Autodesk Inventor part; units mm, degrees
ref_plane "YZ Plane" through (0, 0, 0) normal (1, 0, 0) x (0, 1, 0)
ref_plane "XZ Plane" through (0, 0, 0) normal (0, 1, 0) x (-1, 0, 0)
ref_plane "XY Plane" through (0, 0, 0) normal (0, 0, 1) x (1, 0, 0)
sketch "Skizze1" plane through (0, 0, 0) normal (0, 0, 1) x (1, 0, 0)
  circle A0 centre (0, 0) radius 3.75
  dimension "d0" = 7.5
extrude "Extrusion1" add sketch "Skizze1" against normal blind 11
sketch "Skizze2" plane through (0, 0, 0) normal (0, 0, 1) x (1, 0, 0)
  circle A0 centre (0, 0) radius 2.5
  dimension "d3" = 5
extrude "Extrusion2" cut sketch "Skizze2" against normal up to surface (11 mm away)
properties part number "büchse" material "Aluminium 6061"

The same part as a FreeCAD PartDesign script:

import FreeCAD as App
import Part
import Sketcher
from FreeCAD import Vector

doc = App.newDocument("Part")
body = doc.addObject("PartDesign::Body", "Body")

sketch1 = doc.addObject("Sketcher::SketchObject", "Sketch")
body.addObject(sketch1)
sketch1.AttachmentSupport = (doc.XY_Plane, [""])
sketch1.MapMode = "FlatFace"
sketch1.addGeometry(Part.Circle(Vector(0, 0, 0), Vector(0, 0, 1), 3.75), False)
sketch1.addConstraint(Sketcher.Constraint("Coincident", 0, 3, -1, 1))
sketch1.addConstraint(Sketcher.Constraint("Diameter", 0, 7.5))
pad1 = doc.addObject("PartDesign::Pad", "Pad")
body.addObject(pad1)
pad1.Profile = sketch1
pad1.Length = 11
pad1.Reversed = True

sketch2 = doc.addObject("Sketcher::SketchObject", "Sketch001")
body.addObject(sketch2)
sketch2.AttachmentSupport = (doc.XY_Plane, [""])
sketch2.MapMode = "FlatFace"
sketch2.addGeometry(Part.Circle(Vector(0, 0, 0), Vector(0, 0, 1), 2.5), False)
sketch2.addConstraint(Sketcher.Constraint("Coincident", 0, 3, -1, 1))
sketch2.addConstraint(Sketcher.Constraint("Diameter", 0, 5.0))
pocket1 = doc.addObject("PartDesign::Pocket", "Pocket")
body.addObject(pocket1)
pocket1.Profile = sketch2
pocket1.Length = 11

doc.recompute()
